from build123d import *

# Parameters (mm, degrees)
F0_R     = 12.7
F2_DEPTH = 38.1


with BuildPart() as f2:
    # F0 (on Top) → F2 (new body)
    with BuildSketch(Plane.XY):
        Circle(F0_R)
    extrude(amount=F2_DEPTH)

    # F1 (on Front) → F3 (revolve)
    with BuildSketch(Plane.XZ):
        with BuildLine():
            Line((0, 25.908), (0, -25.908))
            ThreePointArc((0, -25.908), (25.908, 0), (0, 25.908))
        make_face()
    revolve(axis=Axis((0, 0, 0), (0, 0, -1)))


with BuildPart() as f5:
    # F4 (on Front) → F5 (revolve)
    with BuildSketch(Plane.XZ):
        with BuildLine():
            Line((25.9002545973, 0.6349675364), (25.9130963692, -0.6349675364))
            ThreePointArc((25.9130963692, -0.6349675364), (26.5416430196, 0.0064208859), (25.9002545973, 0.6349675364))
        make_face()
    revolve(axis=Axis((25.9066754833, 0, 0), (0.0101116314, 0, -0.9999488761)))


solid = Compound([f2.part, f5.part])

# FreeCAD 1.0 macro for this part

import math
import FreeCAD as App
import Part
import Sketcher
Q = App.Units.Quantity

doc = App.newDocument("Part")
body = doc.addObject("PartDesign::Body", "Body")

# Sketch on XY plane
sketch1 = body.newObject("Sketcher::SketchObject", "Sketch")
sketch1.AttachmentSupport = (doc.getObject("XY_Plane"), [""])
sketch1.MapMode = "FlatFace"
sketch1.addGeometry(Part.Circle(App.Vector(0, 0, 0), App.Vector(0, 0, 1), 13), False)
sketch1.addConstraint(Sketcher.Constraint("Coincident", 0, 3, -1, 1))
sketch1.addConstraint(Sketcher.Constraint("Diameter", 0, Q("1 in")))
pad1 = body.newObject("PartDesign::Pad", "Pad")
pad1.Profile = sketch1
pad1.Length = Q("1.5 in")

# Sketch on XZ plane
sketch2 = body.newObject("Sketcher::SketchObject", "Sketch001")
sketch2.AttachmentSupport = (doc.getObject("XZ_Plane"), [""])
sketch2.MapMode = "FlatFace"
sketch2.addGeometry(Part.LineSegment(App.Vector(0, 26, 0), App.Vector(0, -26, 0)), False)
sketch2.addGeometry(Part.ArcOfCircle(Part.Circle(App.Vector(0, 0, 0), App.Vector(0, 0, 1), 26), math.radians(-90), math.radians(90)), False)
sketch2.addConstraint(Sketcher.Constraint("Coincident", 0, 1, 1, 2))
sketch2.addConstraint(Sketcher.Constraint("Coincident", 1, 1, 0, 2))
sketch2.addConstraint(Sketcher.Constraint("Vertical", 0))
sketch2.addConstraint(Sketcher.Constraint("Coincident", 1, 3, -1, 1))
sketch2.addConstraint(Sketcher.Constraint("PointOnObject", 0, 1, -2))
sketch2.addConstraint(Sketcher.Constraint("Radius", 1, Q("1.02 in")))
revolution = body.newObject("PartDesign::Revolution", "Revolution")
revolution.Profile = sketch2
revolution.ReferenceAxis = (sketch2, ["V_Axis"])
revolution.Angle = 360
body2 = doc.addObject("PartDesign::Body", "Body001")

# Sketch on XZ plane
sketch3 = body2.newObject("Sketcher::SketchObject", "Sketch002")
sketch3.AttachmentSupport = (doc.getObject("XZ_Plane001"), [""])
sketch3.MapMode = "FlatFace"
sketch3.addGeometry(Part.LineSegment(App.Vector(25.9, 0.6, 0), App.Vector(25.9, -0.6, 0)), False)
sketch3.addGeometry(Part.ArcOfCircle(Part.Circle(App.Vector(25.9, 0, 0), App.Vector(0, 0, 1), 0.6), math.radians(-89), math.radians(91)), False)
sketch3.addGeometry(Part.LineSegment(App.Vector(25.9, 0.6, 0), App.Vector(25.9, -0.6, 0)), True)  # axis
sketch3.addConstraint(Sketcher.Constraint("Coincident", 0, 1, 1, 2))
sketch3.addConstraint(Sketcher.Constraint("Coincident", 1, 1, 0, 2))
sketch3.addConstraint(Sketcher.Constraint("Coincident", 2, 1, 0, 1))
sketch3.addConstraint(Sketcher.Constraint("Coincident", 2, 2, 1, 1))
sketch3.addConstraint(Sketcher.Constraint("PointOnObject", 1, 3, -1))
sketch3.addConstraint(Sketcher.Constraint("Radius", 1, Q("0.025 in")))
sketch3.addConstraint(Sketcher.Constraint("DistanceX", 0, 1, 1, 3, 0.006421))
sketch3.addConstraint(Sketcher.Constraint("DistanceX", 1, 3, 1, 1, 0.006421))
sketch3.addConstraint(Sketcher.Constraint("DistanceX", -1, 1, 1, 3, 25.906675))
revolution2 = body2.newObject("PartDesign::Revolution", "Revolution001")
revolution2.Profile = sketch3
revolution2.ReferenceAxis = (sketch3, ["Axis0"])
revolution2.Angle = 360

doc.recompute()
